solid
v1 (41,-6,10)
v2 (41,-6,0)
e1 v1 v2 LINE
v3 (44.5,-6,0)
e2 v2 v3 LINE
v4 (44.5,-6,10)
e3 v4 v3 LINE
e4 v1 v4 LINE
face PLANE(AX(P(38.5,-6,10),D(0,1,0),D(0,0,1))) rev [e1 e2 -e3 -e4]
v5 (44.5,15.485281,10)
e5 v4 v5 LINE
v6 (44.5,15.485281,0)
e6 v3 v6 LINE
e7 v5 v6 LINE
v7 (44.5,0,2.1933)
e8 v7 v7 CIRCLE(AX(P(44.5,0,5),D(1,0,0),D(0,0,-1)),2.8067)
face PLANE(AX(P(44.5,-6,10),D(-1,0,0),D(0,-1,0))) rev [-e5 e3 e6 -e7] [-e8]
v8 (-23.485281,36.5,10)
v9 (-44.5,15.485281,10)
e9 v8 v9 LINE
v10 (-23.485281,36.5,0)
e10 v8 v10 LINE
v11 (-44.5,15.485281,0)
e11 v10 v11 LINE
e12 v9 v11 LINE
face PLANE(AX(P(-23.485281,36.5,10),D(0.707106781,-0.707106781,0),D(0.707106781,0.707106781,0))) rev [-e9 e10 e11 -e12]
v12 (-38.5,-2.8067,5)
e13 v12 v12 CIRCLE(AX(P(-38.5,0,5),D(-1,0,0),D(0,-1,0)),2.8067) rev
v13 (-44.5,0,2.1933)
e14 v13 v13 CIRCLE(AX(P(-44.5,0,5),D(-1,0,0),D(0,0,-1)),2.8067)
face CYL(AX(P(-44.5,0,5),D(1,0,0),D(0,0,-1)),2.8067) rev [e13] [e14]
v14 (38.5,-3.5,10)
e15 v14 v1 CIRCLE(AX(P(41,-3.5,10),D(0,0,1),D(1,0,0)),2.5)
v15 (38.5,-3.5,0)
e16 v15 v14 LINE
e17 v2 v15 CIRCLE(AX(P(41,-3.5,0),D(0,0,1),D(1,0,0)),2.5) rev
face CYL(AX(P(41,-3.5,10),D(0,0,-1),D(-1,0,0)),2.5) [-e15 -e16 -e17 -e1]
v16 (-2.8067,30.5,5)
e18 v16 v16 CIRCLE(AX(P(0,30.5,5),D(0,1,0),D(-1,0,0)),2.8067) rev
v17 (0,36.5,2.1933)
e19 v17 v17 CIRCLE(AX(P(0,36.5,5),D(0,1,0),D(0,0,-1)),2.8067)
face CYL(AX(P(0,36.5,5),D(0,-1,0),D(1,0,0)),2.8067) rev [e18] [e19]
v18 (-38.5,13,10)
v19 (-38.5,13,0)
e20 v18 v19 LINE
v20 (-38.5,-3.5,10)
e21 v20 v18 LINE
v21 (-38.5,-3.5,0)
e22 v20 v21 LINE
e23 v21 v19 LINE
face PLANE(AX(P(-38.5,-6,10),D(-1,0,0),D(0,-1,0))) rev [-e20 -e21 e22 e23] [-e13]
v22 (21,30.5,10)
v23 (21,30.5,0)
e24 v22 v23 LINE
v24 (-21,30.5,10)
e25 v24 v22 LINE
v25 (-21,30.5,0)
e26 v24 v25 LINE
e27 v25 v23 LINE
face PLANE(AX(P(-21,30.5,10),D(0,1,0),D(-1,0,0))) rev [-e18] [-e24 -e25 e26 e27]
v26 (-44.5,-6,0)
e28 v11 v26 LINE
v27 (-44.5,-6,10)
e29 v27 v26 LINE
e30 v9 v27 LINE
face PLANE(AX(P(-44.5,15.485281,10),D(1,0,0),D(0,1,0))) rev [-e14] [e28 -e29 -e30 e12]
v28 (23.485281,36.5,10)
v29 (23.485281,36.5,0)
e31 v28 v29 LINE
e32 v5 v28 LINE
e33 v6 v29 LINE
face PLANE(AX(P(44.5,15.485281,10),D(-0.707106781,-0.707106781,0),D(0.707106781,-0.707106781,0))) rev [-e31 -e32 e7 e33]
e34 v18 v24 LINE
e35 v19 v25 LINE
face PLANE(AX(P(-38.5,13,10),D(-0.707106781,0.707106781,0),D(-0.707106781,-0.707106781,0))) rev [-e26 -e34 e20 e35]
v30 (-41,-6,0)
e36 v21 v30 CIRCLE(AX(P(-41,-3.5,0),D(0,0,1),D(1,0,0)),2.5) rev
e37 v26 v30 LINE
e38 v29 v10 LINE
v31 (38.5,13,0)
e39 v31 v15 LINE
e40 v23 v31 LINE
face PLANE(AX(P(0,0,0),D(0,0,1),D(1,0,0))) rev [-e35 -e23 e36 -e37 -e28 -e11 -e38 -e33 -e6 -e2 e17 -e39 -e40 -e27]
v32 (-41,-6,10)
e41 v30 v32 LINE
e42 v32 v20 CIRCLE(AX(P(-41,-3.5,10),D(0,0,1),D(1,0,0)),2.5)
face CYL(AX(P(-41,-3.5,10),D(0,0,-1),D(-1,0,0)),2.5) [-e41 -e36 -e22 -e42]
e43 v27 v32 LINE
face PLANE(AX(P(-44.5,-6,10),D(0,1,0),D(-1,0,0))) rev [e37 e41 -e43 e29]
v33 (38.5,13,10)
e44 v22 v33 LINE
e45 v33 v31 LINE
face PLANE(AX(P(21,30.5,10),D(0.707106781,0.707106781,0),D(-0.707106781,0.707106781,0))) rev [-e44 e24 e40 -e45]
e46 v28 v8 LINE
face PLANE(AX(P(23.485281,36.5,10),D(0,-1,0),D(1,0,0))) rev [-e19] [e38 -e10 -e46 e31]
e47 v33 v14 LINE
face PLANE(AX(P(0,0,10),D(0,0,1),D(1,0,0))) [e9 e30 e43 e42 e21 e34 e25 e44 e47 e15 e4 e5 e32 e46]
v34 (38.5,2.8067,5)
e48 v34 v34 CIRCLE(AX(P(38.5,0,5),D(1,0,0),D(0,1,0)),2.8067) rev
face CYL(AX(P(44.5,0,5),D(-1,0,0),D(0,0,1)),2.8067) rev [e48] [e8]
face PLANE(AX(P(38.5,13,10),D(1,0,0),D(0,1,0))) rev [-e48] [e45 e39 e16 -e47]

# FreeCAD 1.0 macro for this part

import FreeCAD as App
import Part
import Sketcher


def edges_at(feature, points):
    """Names of the edges that pass closest to the given points."""
    edges = feature.Shape.Edges
    near = lambda p: min(range(len(edges)), key=lambda i: edges[i].distToShape(Part.Vertex(*p))[0])
    return sorted({f"Edge{near(p) + 1}" for p in points})


def add_polygon(sketch, points):
    """Adds a closed chain of lines whose ends are joined by coincident constraints."""
    first, n = sketch.GeometryCount, len(points)
    for a, b in zip(points, points[1:] + points[:1]):
        sketch.addGeometry(Part.LineSegment(App.Vector(*a, 0), App.Vector(*b, 0)), False)
    for i in range(n):
        sketch.addConstraint(Sketcher.Constraint("Coincident", first + i, 2, first + (i + 1) % n, 1))

doc = App.newDocument("Part")
params = doc.addObject("Spreadsheet::Sheet", "Params")
for row, (alias, value) in enumerate([
    ("sketch1_width", "6 mm"),
    ("sketch1_width2", "42 mm"),
    ("sketch1_height", "19 mm"),
    ("pad1_length", "10 mm"),
    ("fillet_radius", "2.5 mm"),
], start=1):
    params.set(f"A{row}", alias)
    params.set(f"B{row}", "=" + value)
    params.setAlias(f"B{row}", alias)

body = doc.addObject("PartDesign::Body", "Body")

sketch1 = body.newObject("Sketcher::SketchObject", "Sketch")
sketch1.AttachmentSupport = (doc.getObject("XY_Plane"), [""])
sketch1.MapMode = "FlatFace"
add_polygon(sketch1, [(-44, -6), (-38, -6), (-38, 13), (-21, 30), (21, 30), (38, 13), (38, -6), (44, -6), (44, 15), (23, 36), (-23, 36), (-44, 15)])
sketch1.addConstraint([
    Sketcher.Constraint("Horizontal", 0),
    Sketcher.Constraint("Vertical", 1),
    Sketcher.Constraint("Horizontal", 3),
    Sketcher.Constraint("Vertical", 5),
    Sketcher.Constraint("Horizontal", 6),
    Sketcher.Constraint("Vertical", 7),
    Sketcher.Constraint("Horizontal", 9),
    Sketcher.Constraint("Vertical", 11),
    Sketcher.Constraint("Symmetric", 1, 2, 4, 2, -2),
    Sketcher.Constraint("Symmetric", 7, 2, 10, 2, -2),
    Sketcher.Constraint("Perpendicular", 2, 4),
    Sketcher.Constraint("Parallel", 4, 8),
    Sketcher.Constraint("Perpendicular", 8, 10),
    Sketcher.Constraint("Horizontal", 0, 2, 5, 2),
    Sketcher.Constraint("Equal", 2, 4),
    Sketcher.Constraint("DistanceX", 0, 1, 0, 2, 6.0),
    Sketcher.Constraint("DistanceX", 3, 1, 3, 2, 42.0),
    Sketcher.Constraint("DistanceY", 1, 1, 1, 2, 19.0),
    Sketcher.Constraint("DistanceY", 0, 2, -1, 1, 6.0),
    Sketcher.Constraint("DistanceX", 1, 2, 4, 2, 77.0),
    Sketcher.Constraint("DistanceY", 3, 2, 8, 2, 6.0),
    Sketcher.Constraint("Distance", 8, 29.7193),
])
sketch1.setExpression("Constraints[27]", "Params.sketch1_width")
sketch1.setExpression("Constraints[28]", "Params.sketch1_width2")
sketch1.setExpression("Constraints[29]", "Params.sketch1_height")
pad1 = body.newObject("PartDesign::Pad", "Pad")
pad1.Profile = sketch1
pad1.setExpression("Length", "Params.pad1_length")

sketch2 = body.newObject("Sketcher::SketchObject", "Sketch001")
sketch2.AttachmentSupport = (doc.getObject("YZ_Plane"), [""])
sketch2.MapMode = "FlatFace"
sketch2.addGeometry(Part.Circle(App.Vector(0, 5, 0), App.Vector(0, 0, 1), 2.8), False)
sketch2.addConstraint([
    Sketcher.Constraint("PointOnObject", 0, 3, -2),
    Sketcher.Constraint("DistanceY", -1, 1, 0, 3, 5.0),
    Sketcher.Constraint("Diameter", 0, 5.6134),
])
pocket1 = body.newObject("PartDesign::Pocket", "Pocket")
pocket1.Profile = sketch2
pocket1.Type = "ThroughAll"
pocket1.Reversed = True
doc.recompute()

fillet = body.newObject("PartDesign::Fillet", "Fillet")
fillet.Base = (pocket1, edges_at(pocket1, [(38.5, -6, 5), (-38.5, -6, 5)]))
fillet.setExpression("Radius", "Params.fillet_radius")
doc.recompute()

polarpattern = body.newObject("PartDesign::PolarPattern", "PolarPattern")
polarpattern.Originals = [pocket1]
polarpattern.Axis = (doc.getObject("Z_Axis"), [""])
polarpattern.Angle = 180
polarpattern.Occurrences = 3
body.Tip = polarpattern

doc.recompute()
